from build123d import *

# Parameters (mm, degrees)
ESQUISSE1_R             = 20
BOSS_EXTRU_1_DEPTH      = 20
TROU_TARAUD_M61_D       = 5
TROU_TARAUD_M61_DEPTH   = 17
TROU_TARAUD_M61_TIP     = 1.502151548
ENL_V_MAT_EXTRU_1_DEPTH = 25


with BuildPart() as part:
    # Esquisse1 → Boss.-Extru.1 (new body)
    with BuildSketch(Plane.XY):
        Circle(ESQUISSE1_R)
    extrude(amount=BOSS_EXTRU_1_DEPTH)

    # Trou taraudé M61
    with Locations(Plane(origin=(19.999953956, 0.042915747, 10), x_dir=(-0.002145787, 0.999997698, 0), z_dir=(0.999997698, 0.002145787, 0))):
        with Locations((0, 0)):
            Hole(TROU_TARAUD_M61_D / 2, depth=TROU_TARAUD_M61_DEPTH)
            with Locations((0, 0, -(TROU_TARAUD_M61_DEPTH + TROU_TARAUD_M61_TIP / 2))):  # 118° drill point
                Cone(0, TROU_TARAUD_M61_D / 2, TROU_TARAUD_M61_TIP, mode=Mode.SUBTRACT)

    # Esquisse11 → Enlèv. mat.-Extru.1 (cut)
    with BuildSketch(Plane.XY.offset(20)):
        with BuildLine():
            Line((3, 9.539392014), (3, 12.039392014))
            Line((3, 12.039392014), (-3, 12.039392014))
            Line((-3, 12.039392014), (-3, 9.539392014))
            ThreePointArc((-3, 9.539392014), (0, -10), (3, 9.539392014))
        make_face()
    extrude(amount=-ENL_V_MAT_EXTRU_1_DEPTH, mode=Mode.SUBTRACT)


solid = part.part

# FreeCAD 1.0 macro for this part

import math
import FreeCAD as App
import Part
import Sketcher

V = App.Vector
Q = App.Units.Quantity

doc = App.newDocument("Part")
body = doc.addObject("PartDesign::Body", "Body")

# Sketch on XY plane
sketch1 = body.newObject("Sketcher::SketchObject", "Sketch")
sketch1.AttachmentSupport = (doc.getObject("XY_Plane"), [""])
sketch1.MapMode = "FlatFace"
sketch1.addGeometry(Part.Circle(V(0, 0, 0), V(0, 0, 1), 20), False)
sketch1.addConstraint([
    Sketcher.Constraint("Coincident", 0, 3, -1, 1),
    Sketcher.Constraint("Diameter", 0, Q("40 mm")),
])
pad1 = body.newObject("PartDesign::Pad", "Pad")
pad1.Profile = sketch1
pad1.Length = 20

# Sketch on an angled plane
sketch2 = body.newObject("Sketcher::SketchObject", "Sketch001")
sketch2.Placement = App.Placement(V(19.999954, 0.042916, 0), App.Rotation(V(-0.002145787, 0.999997698, 0), V(0, 0, 1), V(0.999997698, 0.002145787, 0), "ZXY"))
sketch2.addGeometry(Part.Circle(V(0, 10, 0), V(0, 0, 1), 2.5), False)
sketch2.addConstraint([
    Sketcher.Constraint("PointOnObject", 0, 3, -2),
    Sketcher.Constraint("Diameter", 0, Q("5 mm")),
    Sketcher.Constraint("DistanceY", -1, 1, 0, 3, Q("10 mm")),
])
doc.recompute()
hole = body.newObject("PartDesign::Hole", "Hole")
hole.Profile = sketch2
hole.ThreadType = "None"
hole.Diameter = 5
hole.DepthType = "Dimension"
hole.Depth = 17
hole.DrillPoint = "Angled"
hole.DrillPointAngle = 118

# Sketch on XY plane
sketch3 = body.newObject("Sketcher::SketchObject", "Sketch002")
sketch3.AttachmentSupport = (doc.getObject("XY_Plane"), [""])
sketch3.MapMode = "FlatFace"
sketch3.AttachmentOffset = App.Placement(V(0, 0, 20), App.Rotation())
sketch3.addGeometry([
    Part.LineSegment(V(3, 9.5, 0), V(3, 12, 0)),
    Part.LineSegment(V(3, 12, 0), V(-3, 12, 0)),
    Part.LineSegment(V(-3, 12, 0), V(-3, 9.5, 0)),
    Part.ArcOfCircle(Part.Circle(V(0, 0, 0), V(0, 0, 1), 10), math.radians(107), math.radians(433)),
], False)
sketch3.addConstraint([
    Sketcher.Constraint("Coincident", 0, 2, 1, 1),
    Sketcher.Constraint("Coincident", 1, 2, 2, 1),
    Sketcher.Constraint("Coincident", 2, 2, 3, 1),
    Sketcher.Constraint("Coincident", 3, 2, 0, 1),
    Sketcher.Constraint("Vertical", 0),
    Sketcher.Constraint("Horizontal", 1),
    Sketcher.Constraint("Vertical", 2),
    Sketcher.Constraint("Coincident", 3, 3, -1, 1),
    Sketcher.Constraint("Horizontal", 2, 2, 3, 2),
    Sketcher.Constraint("Radius", 3, Q("10 mm")),
    Sketcher.Constraint("DistanceX", 1, 2, 1, 1, Q("6 mm")),
    Sketcher.Constraint("DistanceY", 0, 1, 0, 2, Q("2.5 mm")),
])
pocket1 = body.newObject("PartDesign::Pocket", "Pocket")
pocket1.Profile = sketch3
pocket1.Length = 25

doc.recompute()
